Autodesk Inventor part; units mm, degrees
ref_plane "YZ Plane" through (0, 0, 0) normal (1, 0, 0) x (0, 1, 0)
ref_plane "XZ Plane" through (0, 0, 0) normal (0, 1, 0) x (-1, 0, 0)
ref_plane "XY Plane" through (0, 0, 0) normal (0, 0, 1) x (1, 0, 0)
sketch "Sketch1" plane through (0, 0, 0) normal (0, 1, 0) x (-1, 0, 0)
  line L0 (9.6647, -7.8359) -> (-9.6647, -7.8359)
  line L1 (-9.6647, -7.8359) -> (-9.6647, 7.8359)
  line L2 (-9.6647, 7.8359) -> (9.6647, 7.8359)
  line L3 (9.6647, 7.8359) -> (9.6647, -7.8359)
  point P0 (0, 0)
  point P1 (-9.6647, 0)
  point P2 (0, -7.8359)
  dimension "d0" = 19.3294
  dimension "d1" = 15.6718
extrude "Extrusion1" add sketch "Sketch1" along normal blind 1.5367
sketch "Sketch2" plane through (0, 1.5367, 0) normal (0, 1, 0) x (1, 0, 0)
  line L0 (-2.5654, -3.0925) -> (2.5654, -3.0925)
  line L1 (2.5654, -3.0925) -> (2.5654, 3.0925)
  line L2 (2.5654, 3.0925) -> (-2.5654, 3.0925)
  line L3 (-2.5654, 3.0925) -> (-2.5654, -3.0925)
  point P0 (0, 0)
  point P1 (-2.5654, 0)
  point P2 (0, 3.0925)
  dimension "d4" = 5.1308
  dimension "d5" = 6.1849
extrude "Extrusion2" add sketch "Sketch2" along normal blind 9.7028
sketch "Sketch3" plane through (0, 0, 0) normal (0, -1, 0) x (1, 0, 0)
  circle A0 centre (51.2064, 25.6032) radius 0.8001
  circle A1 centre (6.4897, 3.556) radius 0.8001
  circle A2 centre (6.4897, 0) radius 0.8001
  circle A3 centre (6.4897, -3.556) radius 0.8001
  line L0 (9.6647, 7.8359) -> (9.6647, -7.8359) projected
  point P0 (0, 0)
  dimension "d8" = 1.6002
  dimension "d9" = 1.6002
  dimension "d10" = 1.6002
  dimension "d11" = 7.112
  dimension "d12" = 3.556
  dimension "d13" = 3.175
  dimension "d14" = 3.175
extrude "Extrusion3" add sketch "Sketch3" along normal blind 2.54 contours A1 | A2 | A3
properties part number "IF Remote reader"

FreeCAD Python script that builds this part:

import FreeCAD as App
import Part
import Sketcher
from FreeCAD import Vector
Q = App.Units.Quantity


def add_polygon(sketch, points):
    """Adds a closed chain of lines whose ends are joined by coincident constraints."""
    first, n = sketch.GeometryCount, len(points)
    for a, b in zip(points, points[1:] + points[:1]):
        sketch.addGeometry(Part.LineSegment(App.Vector(*a, 0), App.Vector(*b, 0)), False)
    for i in range(n):
        sketch.addConstraint(Sketcher.Constraint("Coincident", first + i, 2, first + (i + 1) % n, 1))

doc = App.newDocument("Part")
body = doc.addObject("PartDesign::Body", "Body")

sketch1 = body.newObject("Sketcher::SketchObject", "Sketch")
sketch1.AttachmentSupport = (doc.getObject("XZ_Plane"), [""])
sketch1.MapMode = "FlatFace"
add_polygon(sketch1, [(9.6647, -7.8359), (-9.6647, -7.8359), (-9.6647, 7.8359), (9.6647, 7.8359)])
sketch1.addConstraint([
    Sketcher.Constraint("Horizontal", 0),
    Sketcher.Constraint("Vertical", 1),
    Sketcher.Constraint("Horizontal", 2),
    Sketcher.Constraint("Vertical", 3),
    Sketcher.Constraint("Symmetric", 0, 2, 2, 2, -1, 1),
    Sketcher.Constraint("DistanceX", 0, 2, 0, 1, Q("0.761 in")),
    Sketcher.Constraint("DistanceY", 1, 1, 1, 2, Q("0.617 in")),
])
pad1 = body.newObject("PartDesign::Pad", "Pad")
pad1.Profile = sketch1
pad1.Length = Q("0.0605 in")
pad1.Reversed = True

sketch2 = body.newObject("Sketcher::SketchObject", "Sketch001")
sketch2.AttachmentSupport = (doc.getObject("XZ_Plane"), [""])
sketch2.MapMode = "FlatFace"
sketch2.AttachmentOffset = App.Placement(Vector(0, 0, -0.0605 * 25.4), App.Rotation())
add_polygon(sketch2, [(-2.5654, -3.0925), (-2.5654, 3.0925), (2.5654, 3.0925), (2.5654, -3.0925)])
sketch2.addConstraint([
    Sketcher.Constraint("Vertical", 0),
    Sketcher.Constraint("Horizontal", 1),
    Sketcher.Constraint("Vertical", 2),
    Sketcher.Constraint("Horizontal", 3),
    Sketcher.Constraint("Symmetric", 0, 2, 2, 2, -1, 1),
    Sketcher.Constraint("DistanceX", 1, 1, 1, 2, Q("0.202 in")),
    Sketcher.Constraint("DistanceY", 0, 1, 0, 2, Q("0.2435 in")),
])
pad2 = body.newObject("PartDesign::Pad", "Pad001")
pad2.Profile = sketch2
pad2.Length = Q("0.382 in")
pad2.Reversed = True

sketch3 = body.newObject("Sketcher::SketchObject", "Sketch002")
sketch3.AttachmentSupport = (doc.getObject("XZ_Plane"), [""])
sketch3.MapMode = "FlatFace"
sketch3.addGeometry([
    Part.Circle(Vector(6.4897, 3.556, 0), Vector(0, 0, 1), 0.8001),
    Part.Circle(Vector(6.4897, 0, 0), Vector(0, 0, 1), 0.8001),
    Part.Circle(Vector(6.4897, -3.556, 0), Vector(0, 0, 1), 0.8001),
], False)
sketch3.addConstraint([
    Sketcher.Constraint("Equal", 0, 1),
    Sketcher.Constraint("Equal", 1, 2),
    Sketcher.Constraint("Symmetric", 0, 3, 2, 3, -1),
    Sketcher.Constraint("PointOnObject", 1, 3, -1),
    Sketcher.Constraint("Vertical", 0, 3, 1, 3),
    Sketcher.Constraint("Diameter", 0, Q("0.063 in")),
    Sketcher.Constraint("DistanceY", -1, 1, 0, 3, Q("0.14 in")),
    Sketcher.Constraint("DistanceX", -1, 1, 0, 3, Q("0.2555 in")),
])
pad3 = body.newObject("PartDesign::Pad", "Pad002")
pad3.Profile = sketch3
pad3.Length = Q("0.1 in")

doc.recompute()
